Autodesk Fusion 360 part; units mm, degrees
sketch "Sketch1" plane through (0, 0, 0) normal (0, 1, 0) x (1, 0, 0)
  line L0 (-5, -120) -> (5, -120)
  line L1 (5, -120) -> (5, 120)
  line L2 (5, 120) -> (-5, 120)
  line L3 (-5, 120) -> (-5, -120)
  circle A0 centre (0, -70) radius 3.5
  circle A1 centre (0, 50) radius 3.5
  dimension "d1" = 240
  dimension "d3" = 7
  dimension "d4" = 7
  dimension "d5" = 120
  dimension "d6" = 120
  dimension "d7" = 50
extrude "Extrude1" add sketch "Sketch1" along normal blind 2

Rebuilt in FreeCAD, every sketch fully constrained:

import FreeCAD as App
import Part
import Sketcher

V = App.Vector
Q = App.Units.Quantity


def add_polygon(sketch, points):
    """Adds a closed chain of lines whose ends are joined by coincident constraints."""
    first, n = sketch.GeometryCount, len(points)
    for a, b in zip(points, points[1:] + points[:1]):
        sketch.addGeometry(Part.LineSegment(App.Vector(*a, 0), App.Vector(*b, 0)), False)
    for i in range(n):
        sketch.addConstraint(Sketcher.Constraint("Coincident", first + i, 2, first + (i + 1) % n, 1))

doc = App.newDocument("Part")
body = doc.addObject("PartDesign::Body", "Body")

sketch1 = doc.addObject("Sketcher::SketchObject", "Sketch")
body.addObject(sketch1)
sketch1.AttachmentSupport = (doc.XZ_Plane, [""])
sketch1.MapMode = "FlatFace"
add_polygon(sketch1, [(-5, -120), (-5, 120), (5, 120), (5, -120)])
sketch1.addGeometry(Part.Circle(V(0, 70, 0), V(0, 0, 1), 3.5), False)
sketch1.addGeometry(Part.Circle(V(0, -50, 0), V(0, 0, 1), 3.5), False)
sketch1.addConstraint([
    Sketcher.Constraint("Vertical", 0),
    Sketcher.Constraint("Horizontal", 1),
    Sketcher.Constraint("Vertical", 2),
    Sketcher.Constraint("Horizontal", 3),
    Sketcher.Constraint("Equal", 4, 5),
    Sketcher.Constraint("Symmetric", 0, 2, 2, 2, -1, 1),
    Sketcher.Constraint("PointOnObject", 4, 3, -2),
    Sketcher.Constraint("PointOnObject", 5, 3, -2),
    Sketcher.Constraint("Diameter", 4, Q("7 mm")),
    Sketcher.Constraint("DistanceY", 0, 1, 0, 2, Q("240 mm")),
    Sketcher.Constraint("DistanceY", 5, 3, -1, 1, Q("50 mm")),
    Sketcher.Constraint("DistanceY", 5, 3, 4, 3, Q("120 mm")),
    Sketcher.Constraint("DistanceX", 1, 1, 1, 2, Q("10 mm")),
])
pad1 = doc.addObject("PartDesign::Pad", "Pad")
body.addObject(pad1)
pad1.Profile = sketch1
pad1.Length = 2
pad1.Reversed = True

doc.recompute()
